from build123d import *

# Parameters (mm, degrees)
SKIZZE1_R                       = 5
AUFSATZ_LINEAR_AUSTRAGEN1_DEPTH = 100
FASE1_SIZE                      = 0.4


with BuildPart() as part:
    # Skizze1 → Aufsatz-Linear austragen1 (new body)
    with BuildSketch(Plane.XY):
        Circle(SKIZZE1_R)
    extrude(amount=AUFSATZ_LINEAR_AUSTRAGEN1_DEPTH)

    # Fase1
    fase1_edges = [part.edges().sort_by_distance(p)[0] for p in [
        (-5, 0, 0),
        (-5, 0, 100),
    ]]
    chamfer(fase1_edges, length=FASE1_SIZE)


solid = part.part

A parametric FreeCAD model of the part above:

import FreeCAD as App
import Part
import Sketcher
from FreeCAD import Vector


def edges_at(feature, points):
    """Names of the edges that pass closest to the given points."""
    edges = feature.Shape.Edges
    near = lambda p: min(range(len(edges)), key=lambda i: edges[i].distToShape(Part.Vertex(*p))[0])
    return sorted({f"Edge{near(p) + 1}" for p in points})

doc = App.newDocument("Part")
body = doc.addObject("PartDesign::Body", "Body")

# Sketch on XY plane
sketch1 = body.newObject("Sketcher::SketchObject", "Sketch")
sketch1.AttachmentSupport = (doc.getObject("XY_Plane"), [""])
sketch1.MapMode = "FlatFace"
sketch1.addGeometry(Part.Circle(Vector(0, 0, 0), Vector(0, 0, 1), 5), False)
sketch1.addConstraint([
    Sketcher.Constraint("Coincident", 0, 3, -1, 1),
    Sketcher.Constraint("Diameter", 0, 10.0),
])
pad1 = body.newObject("PartDesign::Pad", "Pad")
pad1.Profile = sketch1
pad1.Length = 100
doc.recompute()

chamfer = body.newObject("PartDesign::Chamfer", "Chamfer")
chamfer.Base = (pad1, edges_at(pad1, [(-5, 0, 0), (-5, 0, 100)]))
chamfer.Size = 0.4

doc.recompute()
